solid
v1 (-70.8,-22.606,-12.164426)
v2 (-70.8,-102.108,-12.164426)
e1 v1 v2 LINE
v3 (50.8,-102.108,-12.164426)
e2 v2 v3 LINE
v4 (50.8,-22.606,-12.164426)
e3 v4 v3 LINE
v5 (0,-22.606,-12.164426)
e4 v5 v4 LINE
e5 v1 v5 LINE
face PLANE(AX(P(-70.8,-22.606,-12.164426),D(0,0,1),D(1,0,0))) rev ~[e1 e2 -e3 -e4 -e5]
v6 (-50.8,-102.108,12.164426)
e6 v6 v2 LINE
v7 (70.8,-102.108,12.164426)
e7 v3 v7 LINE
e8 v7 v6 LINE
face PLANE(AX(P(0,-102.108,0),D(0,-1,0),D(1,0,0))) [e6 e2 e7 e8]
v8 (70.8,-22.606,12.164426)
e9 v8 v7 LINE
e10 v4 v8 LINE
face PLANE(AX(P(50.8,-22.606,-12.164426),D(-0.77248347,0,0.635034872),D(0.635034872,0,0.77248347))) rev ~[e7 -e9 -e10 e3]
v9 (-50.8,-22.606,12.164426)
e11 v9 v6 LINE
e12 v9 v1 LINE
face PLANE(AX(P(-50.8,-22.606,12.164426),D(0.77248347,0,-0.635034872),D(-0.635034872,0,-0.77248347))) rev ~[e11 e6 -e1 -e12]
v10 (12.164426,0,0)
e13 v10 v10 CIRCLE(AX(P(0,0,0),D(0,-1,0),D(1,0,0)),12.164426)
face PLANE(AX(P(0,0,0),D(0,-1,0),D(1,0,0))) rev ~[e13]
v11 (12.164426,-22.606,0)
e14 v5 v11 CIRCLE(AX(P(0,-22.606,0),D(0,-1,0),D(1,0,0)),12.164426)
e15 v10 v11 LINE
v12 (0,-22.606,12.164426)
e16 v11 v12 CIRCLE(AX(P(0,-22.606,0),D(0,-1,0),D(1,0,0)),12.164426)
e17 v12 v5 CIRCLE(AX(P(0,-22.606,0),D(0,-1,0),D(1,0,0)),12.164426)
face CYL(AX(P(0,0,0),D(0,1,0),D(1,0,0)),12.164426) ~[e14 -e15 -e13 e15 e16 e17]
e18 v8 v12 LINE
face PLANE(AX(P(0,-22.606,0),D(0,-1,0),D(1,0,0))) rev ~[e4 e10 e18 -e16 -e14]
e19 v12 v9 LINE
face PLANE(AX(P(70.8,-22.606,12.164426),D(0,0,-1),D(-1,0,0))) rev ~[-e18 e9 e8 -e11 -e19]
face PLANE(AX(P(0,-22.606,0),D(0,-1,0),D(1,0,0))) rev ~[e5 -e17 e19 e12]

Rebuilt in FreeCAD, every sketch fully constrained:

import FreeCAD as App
import Part
import Sketcher
from FreeCAD import Vector
Q = App.Units.Quantity


def add_polygon(sketch, points):
    """Adds a closed chain of lines whose ends are joined by coincident constraints."""
    first, n = sketch.GeometryCount, len(points)
    for a, b in zip(points, points[1:] + points[:1]):
        sketch.addGeometry(Part.LineSegment(App.Vector(*a, 0), App.Vector(*b, 0)), False)
    for i in range(n):
        sketch.addConstraint(Sketcher.Constraint("Coincident", first + i, 2, first + (i + 1) % n, 1))

doc = App.newDocument("Part")
body = doc.addObject("PartDesign::Body", "Body")

# Sketch on XZ plane
sketch1 = body.newObject("Sketcher::SketchObject", "Sketch")
sketch1.AttachmentSupport = (doc.getObject("XZ_Plane"), [""])
sketch1.MapMode = "FlatFace"
sketch1.addGeometry(Part.Circle(Vector(0, 0, 0), Vector(0, 0, 1), 12), False)
sketch1.addConstraint([
    Sketcher.Constraint("Coincident", 0, 3, -1, 1),
    Sketcher.Constraint("Diameter", 0, 24.328852),
])
pad1 = body.newObject("PartDesign::Pad", "Pad")
pad1.Profile = sketch1
pad1.Length = Q("0.89 in")

# Sketch on XZ plane
sketch2 = body.newObject("Sketcher::SketchObject", "Sketch001")
sketch2.AttachmentSupport = (doc.getObject("XZ_Plane"), [""])
sketch2.MapMode = "FlatFace"
sketch2.AttachmentOffset = App.Placement(Vector(0, 0, 0.89 * 25.4), App.Rotation())
add_polygon(sketch2, [(-51, 12), (-71, -12), (51, -12), (71, 12)])  # lines 0-3
sketch2.addConstraint([
    Sketcher.Constraint("Horizontal", 1),
    Sketcher.Constraint("Horizontal", 3),
    Sketcher.Constraint("Symmetric", 0, 2, 2, 2, -1, 1),
    Sketcher.Constraint("Parallel", 0, 2),
    Sketcher.Constraint("DistanceX", -1, 1, 1, 2, Q("2 in")),
    Sketcher.Constraint("DistanceX", 1, 1, 1, 2, 121.6),
    Sketcher.Constraint("Distance", 0, 31.494333),
])
pad2 = body.newObject("PartDesign::Pad", "Pad001")
pad2.Profile = sketch2
pad2.Length = Q("3.13 in")

doc.recompute()
